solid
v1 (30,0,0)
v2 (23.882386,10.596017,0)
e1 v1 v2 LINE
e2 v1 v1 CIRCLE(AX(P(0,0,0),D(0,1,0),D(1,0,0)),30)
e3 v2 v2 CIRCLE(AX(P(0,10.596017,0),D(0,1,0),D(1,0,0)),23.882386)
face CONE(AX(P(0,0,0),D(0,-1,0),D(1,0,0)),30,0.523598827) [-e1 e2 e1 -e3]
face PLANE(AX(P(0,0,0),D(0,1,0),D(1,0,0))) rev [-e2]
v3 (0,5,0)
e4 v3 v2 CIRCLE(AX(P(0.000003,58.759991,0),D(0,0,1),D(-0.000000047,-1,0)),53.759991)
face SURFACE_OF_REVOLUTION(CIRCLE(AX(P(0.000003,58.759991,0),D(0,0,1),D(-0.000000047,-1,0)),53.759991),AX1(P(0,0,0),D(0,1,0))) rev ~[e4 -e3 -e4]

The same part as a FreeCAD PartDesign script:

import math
import FreeCAD as App
import Part
import Sketcher
Q = App.Units.Quantity

doc = App.newDocument("Part")
body = doc.addObject("PartDesign::Body", "Body")

sketch1 = doc.addObject("Sketcher::SketchObject", "Sketch")
body.addObject(sketch1)
sketch1.AttachmentSupport = (doc.XY_Plane, [""])
sketch1.MapMode = "FlatFace"
sketch1.addGeometry([
    Part.ArcOfCircle(Part.Circle(App.Vector(0, 59, 0), App.Vector(0, 0, 1), 54), math.radians(-90), math.radians(-64)),
    Part.LineSegment(App.Vector(0, 5, 0), App.Vector(0, 0, 0)),
    Part.LineSegment(App.Vector(0, 0, 0), App.Vector(30, 0, 0)),
    Part.LineSegment(App.Vector(30, 0, 0), App.Vector(24, 11, 0)),
], False)
sketch1.addConstraint([
    Sketcher.Constraint("Coincident", 0, 1, 1, 1),
    Sketcher.Constraint("Coincident", 1, 2, 2, 1),
    Sketcher.Constraint("Coincident", 2, 2, 3, 1),
    Sketcher.Constraint("Coincident", 3, 2, 0, 2),
    Sketcher.Constraint("Vertical", 1),
    Sketcher.Constraint("Horizontal", 2),
    Sketcher.Constraint("Coincident", 1, 2, -1, 1),
    Sketcher.Constraint("DistanceX", 2, 1, 2, 2, Q("30 mm")),
    Sketcher.Constraint("DistanceY", 1, 2, 1, 1, Q("5 mm")),
    Sketcher.Constraint("Angle", 3, Q("120.000003 deg")),
    Sketcher.Constraint("Radius", 0, Q("53.759991 mm")),
    Sketcher.Constraint("Distance", 3, Q("12.235227 mm")),
])
revolution = doc.addObject("PartDesign::Revolution", "Revolution")
body.addObject(revolution)
revolution.Profile = sketch1
revolution.ReferenceAxis = (sketch1, ["V_Axis"])
revolution.Angle = 360

doc.recompute()
